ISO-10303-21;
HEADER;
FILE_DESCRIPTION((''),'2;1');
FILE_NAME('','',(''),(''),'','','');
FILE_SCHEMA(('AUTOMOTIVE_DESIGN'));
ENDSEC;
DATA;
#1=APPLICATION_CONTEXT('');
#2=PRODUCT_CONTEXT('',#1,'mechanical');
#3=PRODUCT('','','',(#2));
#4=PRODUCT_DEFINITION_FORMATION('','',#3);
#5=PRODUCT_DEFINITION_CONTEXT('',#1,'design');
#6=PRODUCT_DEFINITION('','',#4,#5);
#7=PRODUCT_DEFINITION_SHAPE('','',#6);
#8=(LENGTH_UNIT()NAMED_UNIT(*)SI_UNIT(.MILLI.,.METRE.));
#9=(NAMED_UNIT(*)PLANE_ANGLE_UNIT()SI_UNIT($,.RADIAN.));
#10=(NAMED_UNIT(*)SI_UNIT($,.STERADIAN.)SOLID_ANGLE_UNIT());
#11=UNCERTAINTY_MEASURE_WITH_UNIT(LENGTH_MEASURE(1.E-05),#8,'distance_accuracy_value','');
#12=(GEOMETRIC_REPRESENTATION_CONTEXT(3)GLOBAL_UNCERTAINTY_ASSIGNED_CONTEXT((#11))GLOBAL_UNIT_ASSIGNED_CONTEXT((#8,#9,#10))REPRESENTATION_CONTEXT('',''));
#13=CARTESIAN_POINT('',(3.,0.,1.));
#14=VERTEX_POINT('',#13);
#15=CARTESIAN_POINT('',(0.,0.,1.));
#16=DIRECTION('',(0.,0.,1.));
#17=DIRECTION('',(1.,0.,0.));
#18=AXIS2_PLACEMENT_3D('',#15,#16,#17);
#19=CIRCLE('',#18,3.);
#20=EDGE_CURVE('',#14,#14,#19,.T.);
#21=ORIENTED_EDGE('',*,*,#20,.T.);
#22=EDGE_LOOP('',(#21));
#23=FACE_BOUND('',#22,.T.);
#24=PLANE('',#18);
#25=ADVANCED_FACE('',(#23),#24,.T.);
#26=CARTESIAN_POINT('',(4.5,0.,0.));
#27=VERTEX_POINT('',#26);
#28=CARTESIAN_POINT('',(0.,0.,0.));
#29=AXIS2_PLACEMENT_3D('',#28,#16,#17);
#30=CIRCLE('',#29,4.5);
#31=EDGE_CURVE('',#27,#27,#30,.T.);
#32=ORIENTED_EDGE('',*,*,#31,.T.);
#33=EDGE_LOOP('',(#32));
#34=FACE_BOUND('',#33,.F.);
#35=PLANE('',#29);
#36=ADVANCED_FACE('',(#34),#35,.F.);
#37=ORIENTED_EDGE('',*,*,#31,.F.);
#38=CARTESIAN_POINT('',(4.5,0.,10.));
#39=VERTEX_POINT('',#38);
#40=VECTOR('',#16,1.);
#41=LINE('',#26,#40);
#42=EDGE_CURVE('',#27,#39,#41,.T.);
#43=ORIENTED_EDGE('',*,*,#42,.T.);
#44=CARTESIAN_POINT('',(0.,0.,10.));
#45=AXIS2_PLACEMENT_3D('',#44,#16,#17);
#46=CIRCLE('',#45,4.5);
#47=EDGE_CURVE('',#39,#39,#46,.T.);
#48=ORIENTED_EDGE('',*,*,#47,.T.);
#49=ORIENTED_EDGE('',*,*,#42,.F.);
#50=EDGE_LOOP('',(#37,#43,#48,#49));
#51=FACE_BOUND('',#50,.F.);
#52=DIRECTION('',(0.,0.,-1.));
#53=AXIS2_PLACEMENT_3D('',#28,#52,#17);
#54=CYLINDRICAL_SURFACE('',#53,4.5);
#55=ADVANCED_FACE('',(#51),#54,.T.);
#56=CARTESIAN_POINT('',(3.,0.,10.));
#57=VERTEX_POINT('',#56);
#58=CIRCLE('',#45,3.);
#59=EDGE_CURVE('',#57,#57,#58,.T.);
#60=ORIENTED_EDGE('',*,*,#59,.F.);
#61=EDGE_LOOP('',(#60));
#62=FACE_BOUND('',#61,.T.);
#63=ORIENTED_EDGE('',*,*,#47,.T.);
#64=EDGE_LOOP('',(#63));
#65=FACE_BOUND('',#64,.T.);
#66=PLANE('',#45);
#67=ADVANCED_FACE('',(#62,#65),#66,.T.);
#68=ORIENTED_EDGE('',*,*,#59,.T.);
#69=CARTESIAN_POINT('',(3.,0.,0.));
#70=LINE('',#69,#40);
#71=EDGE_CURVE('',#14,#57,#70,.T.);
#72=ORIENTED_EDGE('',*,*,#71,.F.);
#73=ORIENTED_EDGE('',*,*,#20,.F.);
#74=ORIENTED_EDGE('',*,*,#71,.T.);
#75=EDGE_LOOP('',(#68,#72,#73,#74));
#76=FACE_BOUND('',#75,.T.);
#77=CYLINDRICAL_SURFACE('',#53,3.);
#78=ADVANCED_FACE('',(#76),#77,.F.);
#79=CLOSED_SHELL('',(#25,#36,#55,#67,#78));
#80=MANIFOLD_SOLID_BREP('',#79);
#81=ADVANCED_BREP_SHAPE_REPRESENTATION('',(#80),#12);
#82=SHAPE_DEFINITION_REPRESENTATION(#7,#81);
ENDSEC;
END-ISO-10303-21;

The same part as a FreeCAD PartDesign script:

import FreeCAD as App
import Part
import Sketcher

doc = App.newDocument("Part")
body = doc.addObject("PartDesign::Body", "Body")

# Sketch on XY plane
sketch1 = body.newObject("Sketcher::SketchObject", "Sketch")
sketch1.AttachmentSupport = (doc.getObject("XY_Plane"), [""])
sketch1.MapMode = "FlatFace"
sketch1.addGeometry(Part.Circle(App.Vector(0, 0, 0), App.Vector(0, 0, 1), 3), False)
sketch1.addConstraint(Sketcher.Constraint("Coincident", 0, 3, -1, 1))
sketch1.addConstraint(Sketcher.Constraint("Diameter", 0, 6.0))
pad1 = body.newObject("PartDesign::Pad", "Pad")
pad1.Profile = sketch1
pad1.Length = 1

# Sketch on XY plane
sketch2 = body.newObject("Sketcher::SketchObject", "Sketch001")
sketch2.AttachmentSupport = (doc.getObject("XY_Plane"), [""])
sketch2.MapMode = "FlatFace"
sketch2.addGeometry(Part.Circle(App.Vector(0, 0, 0), App.Vector(0, 0, 1), 4.5), False)
sketch2.addGeometry(Part.Circle(App.Vector(0, 0, 0), App.Vector(0, 0, 1), 3), False)
sketch2.addConstraint(Sketcher.Constraint("Coincident", 0, 3, -1, 1))
sketch2.addConstraint(Sketcher.Constraint("Coincident", 1, 3, -1, 1))
sketch2.addConstraint(Sketcher.Constraint("Diameter", 0, 9.0))
sketch2.addConstraint(Sketcher.Constraint("Diameter", 1, 6.0))
pad2 = body.newObject("PartDesign::Pad", "Pad001")
pad2.Profile = sketch2
pad2.Length = 10

doc.recompute()
